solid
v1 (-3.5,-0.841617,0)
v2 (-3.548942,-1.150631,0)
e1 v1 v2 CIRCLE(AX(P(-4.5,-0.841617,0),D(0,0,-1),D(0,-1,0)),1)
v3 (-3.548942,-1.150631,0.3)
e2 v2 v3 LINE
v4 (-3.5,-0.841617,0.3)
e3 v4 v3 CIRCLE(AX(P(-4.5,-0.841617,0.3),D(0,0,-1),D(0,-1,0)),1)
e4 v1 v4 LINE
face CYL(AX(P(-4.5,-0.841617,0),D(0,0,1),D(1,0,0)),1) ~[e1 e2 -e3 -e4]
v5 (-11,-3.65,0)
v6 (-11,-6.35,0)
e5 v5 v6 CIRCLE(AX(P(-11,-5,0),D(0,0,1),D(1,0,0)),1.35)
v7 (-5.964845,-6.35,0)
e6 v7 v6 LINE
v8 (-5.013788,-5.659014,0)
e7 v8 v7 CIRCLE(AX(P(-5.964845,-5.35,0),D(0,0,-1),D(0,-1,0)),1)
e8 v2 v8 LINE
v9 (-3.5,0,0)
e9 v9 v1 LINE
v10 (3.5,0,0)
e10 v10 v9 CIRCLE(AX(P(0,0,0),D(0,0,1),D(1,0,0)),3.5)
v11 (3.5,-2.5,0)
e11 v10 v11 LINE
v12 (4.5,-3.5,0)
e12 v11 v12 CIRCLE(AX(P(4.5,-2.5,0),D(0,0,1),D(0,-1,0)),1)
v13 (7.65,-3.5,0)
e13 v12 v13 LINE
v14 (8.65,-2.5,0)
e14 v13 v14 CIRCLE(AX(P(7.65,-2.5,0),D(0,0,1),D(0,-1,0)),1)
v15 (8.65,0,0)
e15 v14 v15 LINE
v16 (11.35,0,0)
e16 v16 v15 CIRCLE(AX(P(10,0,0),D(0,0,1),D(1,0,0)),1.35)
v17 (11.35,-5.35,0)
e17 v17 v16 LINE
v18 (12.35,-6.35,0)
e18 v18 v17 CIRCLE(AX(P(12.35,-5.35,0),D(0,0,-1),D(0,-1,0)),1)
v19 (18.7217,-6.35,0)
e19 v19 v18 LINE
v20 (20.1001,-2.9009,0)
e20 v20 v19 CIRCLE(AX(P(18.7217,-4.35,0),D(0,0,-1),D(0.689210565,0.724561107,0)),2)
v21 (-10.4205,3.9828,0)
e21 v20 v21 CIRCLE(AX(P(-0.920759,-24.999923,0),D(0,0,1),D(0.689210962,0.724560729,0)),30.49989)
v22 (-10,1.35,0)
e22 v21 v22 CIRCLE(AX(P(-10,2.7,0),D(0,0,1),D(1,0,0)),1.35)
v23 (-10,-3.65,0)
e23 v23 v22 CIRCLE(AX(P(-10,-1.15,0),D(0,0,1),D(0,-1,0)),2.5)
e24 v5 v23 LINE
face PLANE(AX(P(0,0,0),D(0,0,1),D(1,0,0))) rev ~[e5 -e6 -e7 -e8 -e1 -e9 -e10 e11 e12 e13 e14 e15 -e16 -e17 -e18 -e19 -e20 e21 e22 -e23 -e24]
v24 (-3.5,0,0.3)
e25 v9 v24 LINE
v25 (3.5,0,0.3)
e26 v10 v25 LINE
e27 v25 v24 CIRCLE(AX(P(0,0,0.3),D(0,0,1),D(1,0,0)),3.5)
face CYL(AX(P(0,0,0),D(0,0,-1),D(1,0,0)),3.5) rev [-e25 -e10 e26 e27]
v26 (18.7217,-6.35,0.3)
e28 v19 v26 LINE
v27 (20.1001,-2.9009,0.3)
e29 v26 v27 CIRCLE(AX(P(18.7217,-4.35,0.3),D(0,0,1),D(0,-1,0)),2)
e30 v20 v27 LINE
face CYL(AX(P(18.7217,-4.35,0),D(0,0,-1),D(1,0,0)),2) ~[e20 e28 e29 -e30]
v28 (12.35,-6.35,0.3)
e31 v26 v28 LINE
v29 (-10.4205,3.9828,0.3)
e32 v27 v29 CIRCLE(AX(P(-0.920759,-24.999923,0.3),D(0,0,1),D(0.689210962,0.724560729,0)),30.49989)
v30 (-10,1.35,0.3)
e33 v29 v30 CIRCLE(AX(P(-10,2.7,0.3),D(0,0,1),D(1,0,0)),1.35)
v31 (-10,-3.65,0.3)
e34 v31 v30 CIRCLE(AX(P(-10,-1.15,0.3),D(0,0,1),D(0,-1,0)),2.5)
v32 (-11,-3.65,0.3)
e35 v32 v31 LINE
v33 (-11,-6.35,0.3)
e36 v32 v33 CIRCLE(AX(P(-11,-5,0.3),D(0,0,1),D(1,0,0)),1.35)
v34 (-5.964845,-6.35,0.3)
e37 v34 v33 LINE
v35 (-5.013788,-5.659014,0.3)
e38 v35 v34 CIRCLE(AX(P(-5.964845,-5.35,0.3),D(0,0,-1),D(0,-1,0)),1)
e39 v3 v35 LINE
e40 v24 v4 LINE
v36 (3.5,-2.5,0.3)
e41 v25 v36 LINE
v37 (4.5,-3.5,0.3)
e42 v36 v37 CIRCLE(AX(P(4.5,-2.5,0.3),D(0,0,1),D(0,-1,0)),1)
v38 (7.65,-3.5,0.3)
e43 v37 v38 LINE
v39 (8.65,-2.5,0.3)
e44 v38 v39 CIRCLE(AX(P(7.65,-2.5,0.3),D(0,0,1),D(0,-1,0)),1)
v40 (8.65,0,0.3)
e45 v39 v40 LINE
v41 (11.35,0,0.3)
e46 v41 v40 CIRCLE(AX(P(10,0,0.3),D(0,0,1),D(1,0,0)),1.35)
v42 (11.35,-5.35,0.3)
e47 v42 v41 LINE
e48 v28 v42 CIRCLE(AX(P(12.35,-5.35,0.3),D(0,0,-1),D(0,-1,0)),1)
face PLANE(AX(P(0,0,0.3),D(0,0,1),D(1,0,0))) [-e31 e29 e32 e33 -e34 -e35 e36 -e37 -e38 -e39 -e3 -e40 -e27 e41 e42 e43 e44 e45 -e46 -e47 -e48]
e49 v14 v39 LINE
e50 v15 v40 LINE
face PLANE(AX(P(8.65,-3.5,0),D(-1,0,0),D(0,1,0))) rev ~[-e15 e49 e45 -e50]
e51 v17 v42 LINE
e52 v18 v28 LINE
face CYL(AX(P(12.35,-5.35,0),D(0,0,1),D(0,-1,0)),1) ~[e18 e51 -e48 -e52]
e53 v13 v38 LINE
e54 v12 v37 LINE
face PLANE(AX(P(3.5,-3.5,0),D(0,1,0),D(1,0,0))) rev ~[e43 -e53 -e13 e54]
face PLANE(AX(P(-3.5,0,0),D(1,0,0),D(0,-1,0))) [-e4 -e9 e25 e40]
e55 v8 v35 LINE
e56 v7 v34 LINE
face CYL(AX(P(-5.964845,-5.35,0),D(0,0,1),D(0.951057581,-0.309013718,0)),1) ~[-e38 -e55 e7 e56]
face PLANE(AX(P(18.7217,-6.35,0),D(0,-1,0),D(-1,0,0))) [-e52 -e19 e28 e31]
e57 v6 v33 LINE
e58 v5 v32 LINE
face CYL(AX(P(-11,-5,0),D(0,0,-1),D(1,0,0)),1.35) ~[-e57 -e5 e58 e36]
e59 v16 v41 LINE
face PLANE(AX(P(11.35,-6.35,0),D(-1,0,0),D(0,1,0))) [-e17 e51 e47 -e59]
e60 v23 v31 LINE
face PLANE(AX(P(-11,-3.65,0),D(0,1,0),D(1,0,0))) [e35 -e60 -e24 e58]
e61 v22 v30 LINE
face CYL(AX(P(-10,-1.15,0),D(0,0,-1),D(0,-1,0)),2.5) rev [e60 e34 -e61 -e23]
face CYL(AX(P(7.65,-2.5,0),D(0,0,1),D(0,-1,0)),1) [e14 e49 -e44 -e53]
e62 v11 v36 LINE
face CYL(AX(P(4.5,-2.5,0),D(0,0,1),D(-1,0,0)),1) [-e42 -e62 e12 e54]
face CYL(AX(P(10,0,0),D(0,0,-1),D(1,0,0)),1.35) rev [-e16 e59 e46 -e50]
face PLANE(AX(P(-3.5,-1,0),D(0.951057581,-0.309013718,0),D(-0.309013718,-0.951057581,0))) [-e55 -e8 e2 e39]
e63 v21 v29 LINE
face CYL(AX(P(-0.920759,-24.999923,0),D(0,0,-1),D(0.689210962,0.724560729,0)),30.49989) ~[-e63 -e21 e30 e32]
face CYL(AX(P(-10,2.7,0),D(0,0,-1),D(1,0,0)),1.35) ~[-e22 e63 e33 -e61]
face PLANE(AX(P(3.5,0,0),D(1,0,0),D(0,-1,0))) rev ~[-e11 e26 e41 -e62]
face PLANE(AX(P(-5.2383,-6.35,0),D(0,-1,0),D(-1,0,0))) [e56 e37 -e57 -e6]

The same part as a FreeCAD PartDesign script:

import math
import FreeCAD as App
import Part
import Sketcher

V = App.Vector
Q = App.Units.Quantity


def edges_at(feature, points):
    """Names of the edges that pass closest to the given points."""
    edges = feature.Shape.Edges
    near = lambda p: min(range(len(edges)), key=lambda i: edges[i].distToShape(Part.Vertex(*p))[0])
    return sorted({f"Edge{near(p) + 1}" for p in points})

doc = App.newDocument("Part")
body = doc.addObject("PartDesign::Body", "Body")

# Sketch on XY plane
sketch1 = doc.addObject("Sketcher::SketchObject", "Sketch")
body.addObject(sketch1)
sketch1.AttachmentSupport = (doc.XY_Plane, [""])
sketch1.MapMode = "FlatFace"
sketch1.addGeometry([
    Part.ArcOfCircle(Part.Circle(V(0, 0, 0), V(0, 0, 1), 3.5), math.radians(0), math.radians(180)),  # 0
    Part.LineSegment(V(3.5, 0, 0), V(3.5, -3.5, 0)),  # 1
    Part.LineSegment(V(3.5, -3.5, 0), V(8.7, -3.5, 0)),  # 2
    Part.LineSegment(V(8.7, -3.5, 0), V(8.7, 0, 0)),  # 3
    Part.ArcOfCircle(Part.Circle(V(10, 0, 0), V(0, 0, 1), 1.4), math.radians(0), math.radians(180)),  # 4
    Part.LineSegment(V(11.3, 0, 0), V(11.3, -6.3, 0)),  # 5
    Part.LineSegment(V(11.3, -6.3, 0), V(18.7, -6.3, 0)),  # 6
    Part.ArcOfCircle(Part.Circle(V(18.7, -4.3, 0), V(0, 0, 1), 2), math.radians(-90), math.radians(46)),  # 7
    Part.ArcOfCircle(Part.Circle(V(-0.9, -25, 0), V(0, 0, 1), 30.5), math.radians(46), math.radians(108)),  # 8
    Part.ArcOfCircle(Part.Circle(V(-10, 2.7, 0), V(0, 0, 1), 1.4), math.radians(108), math.radians(270)),  # 9
    Part.ArcOfCircle(Part.Circle(V(-10, -1.1, 0), V(0, 0, 1), 2.5), math.radians(-90), math.radians(90)),  # 10
    Part.LineSegment(V(-10, -3.6, 0), V(-11, -3.6, 0)),  # 11
    Part.ArcOfCircle(Part.Circle(V(-11, -5, 0), V(0, 0, 1), 1.4), math.radians(90), math.radians(270)),  # 12
    Part.LineSegment(V(-11, -6.3, 0), V(-5.2, -6.3, 0)),  # 13
    Part.LineSegment(V(-5.2, -6.3, 0), V(-3.5, -1, 0)),  # 14
    Part.LineSegment(V(-3.5, -1, 0), V(-3.5, 0, 0)),  # 15
], False)
sketch1.addConstraint([
    Sketcher.Constraint("Tangent", 0, 1, 1, 1),
    Sketcher.Constraint("Coincident", 1, 2, 2, 1),
    Sketcher.Constraint("Coincident", 2, 2, 3, 1),
    Sketcher.Constraint("Tangent", 3, 2, 4, 2),
    Sketcher.Constraint("Tangent", 4, 1, 5, 1),
    Sketcher.Constraint("Coincident", 5, 2, 6, 1),
    Sketcher.Constraint("Tangent", 6, 2, 7, 1),
    Sketcher.Constraint("Tangent", 7, 2, 8, 1),
    Sketcher.Constraint("Tangent", 8, 2, 9, 1),
    Sketcher.Constraint("Tangent", 9, 2, 10, 2),
    Sketcher.Constraint("Tangent", 10, 1, 11, 1),
    Sketcher.Constraint("Tangent", 11, 2, 12, 1),
    Sketcher.Constraint("Tangent", 12, 2, 13, 1),
    Sketcher.Constraint("Coincident", 13, 2, 14, 1),
    Sketcher.Constraint("Coincident", 14, 2, 15, 1),
    Sketcher.Constraint("Tangent", 15, 2, 0, 2),
    Sketcher.Constraint("Vertical", 1),
    Sketcher.Constraint("Horizontal", 2),
    Sketcher.Constraint("Vertical", 3),
    Sketcher.Constraint("Vertical", 5),
    Sketcher.Constraint("Horizontal", 6),
    Sketcher.Constraint("Horizontal", 11),
    Sketcher.Constraint("Horizontal", 13),
    Sketcher.Constraint("Vertical", 15),
    Sketcher.Constraint("Coincident", 0, 3, -1, 1),
    Sketcher.Constraint("Equal", 4, 9),
    Sketcher.Constraint("Equal", 9, 12),
    Sketcher.Constraint("PointOnObject", 4, 3, -1),
    Sketcher.Constraint("Horizontal", 6, 2, 12, 2),
    Sketcher.Constraint("Vertical", 9, 3, 10, 3),
    Sketcher.Constraint("Equal", 11, 15),
    Sketcher.Constraint("Radius", 7, 2.0),
    Sketcher.Constraint("Radius", 0, 3.5),
    Sketcher.Constraint("Radius", 8, 30.5),
    Sketcher.Constraint("Radius", 10, 2.5),
    Sketcher.Constraint("DistanceX", 11, 2, 11, 1, 1.0),
    Sketcher.Constraint("Radius", 4, 1.35),
    Sketcher.Constraint("DistanceY", 1, 2, 1, 1, 3.5),
    Sketcher.Constraint("DistanceX", -1, 1, 4, 3, 10.0),
    Sketcher.Constraint("DistanceX", 9, 3, -1, 1, 10.0),
    Sketcher.Constraint("DistanceY", 8, 3, 12, 3, 20.0),
    Sketcher.Constraint("DistanceY", -1, 1, 9, 2, 1.35),
    Sketcher.Constraint("Angle", 14, Q("72.0002 deg")),
])
pad1 = doc.addObject("PartDesign::Pad", "Pad")
body.addObject(pad1)
pad1.Profile = sketch1
pad1.Length = 0.3
doc.recompute()

fillet = doc.addObject("PartDesign::Fillet", "Fillet")
body.addObject(fillet)
fillet.Base = (pad1, edges_at(pad1, [
    (-5.238, -6.35, 0.15),
    (-3.5, -1, 0.15),
    (3.5, -3.5, 0.15),
    (8.65, -3.5, 0.15),
    (11.35, -6.35, 0.15),
]))
fillet.Radius = 1

doc.recompute()
